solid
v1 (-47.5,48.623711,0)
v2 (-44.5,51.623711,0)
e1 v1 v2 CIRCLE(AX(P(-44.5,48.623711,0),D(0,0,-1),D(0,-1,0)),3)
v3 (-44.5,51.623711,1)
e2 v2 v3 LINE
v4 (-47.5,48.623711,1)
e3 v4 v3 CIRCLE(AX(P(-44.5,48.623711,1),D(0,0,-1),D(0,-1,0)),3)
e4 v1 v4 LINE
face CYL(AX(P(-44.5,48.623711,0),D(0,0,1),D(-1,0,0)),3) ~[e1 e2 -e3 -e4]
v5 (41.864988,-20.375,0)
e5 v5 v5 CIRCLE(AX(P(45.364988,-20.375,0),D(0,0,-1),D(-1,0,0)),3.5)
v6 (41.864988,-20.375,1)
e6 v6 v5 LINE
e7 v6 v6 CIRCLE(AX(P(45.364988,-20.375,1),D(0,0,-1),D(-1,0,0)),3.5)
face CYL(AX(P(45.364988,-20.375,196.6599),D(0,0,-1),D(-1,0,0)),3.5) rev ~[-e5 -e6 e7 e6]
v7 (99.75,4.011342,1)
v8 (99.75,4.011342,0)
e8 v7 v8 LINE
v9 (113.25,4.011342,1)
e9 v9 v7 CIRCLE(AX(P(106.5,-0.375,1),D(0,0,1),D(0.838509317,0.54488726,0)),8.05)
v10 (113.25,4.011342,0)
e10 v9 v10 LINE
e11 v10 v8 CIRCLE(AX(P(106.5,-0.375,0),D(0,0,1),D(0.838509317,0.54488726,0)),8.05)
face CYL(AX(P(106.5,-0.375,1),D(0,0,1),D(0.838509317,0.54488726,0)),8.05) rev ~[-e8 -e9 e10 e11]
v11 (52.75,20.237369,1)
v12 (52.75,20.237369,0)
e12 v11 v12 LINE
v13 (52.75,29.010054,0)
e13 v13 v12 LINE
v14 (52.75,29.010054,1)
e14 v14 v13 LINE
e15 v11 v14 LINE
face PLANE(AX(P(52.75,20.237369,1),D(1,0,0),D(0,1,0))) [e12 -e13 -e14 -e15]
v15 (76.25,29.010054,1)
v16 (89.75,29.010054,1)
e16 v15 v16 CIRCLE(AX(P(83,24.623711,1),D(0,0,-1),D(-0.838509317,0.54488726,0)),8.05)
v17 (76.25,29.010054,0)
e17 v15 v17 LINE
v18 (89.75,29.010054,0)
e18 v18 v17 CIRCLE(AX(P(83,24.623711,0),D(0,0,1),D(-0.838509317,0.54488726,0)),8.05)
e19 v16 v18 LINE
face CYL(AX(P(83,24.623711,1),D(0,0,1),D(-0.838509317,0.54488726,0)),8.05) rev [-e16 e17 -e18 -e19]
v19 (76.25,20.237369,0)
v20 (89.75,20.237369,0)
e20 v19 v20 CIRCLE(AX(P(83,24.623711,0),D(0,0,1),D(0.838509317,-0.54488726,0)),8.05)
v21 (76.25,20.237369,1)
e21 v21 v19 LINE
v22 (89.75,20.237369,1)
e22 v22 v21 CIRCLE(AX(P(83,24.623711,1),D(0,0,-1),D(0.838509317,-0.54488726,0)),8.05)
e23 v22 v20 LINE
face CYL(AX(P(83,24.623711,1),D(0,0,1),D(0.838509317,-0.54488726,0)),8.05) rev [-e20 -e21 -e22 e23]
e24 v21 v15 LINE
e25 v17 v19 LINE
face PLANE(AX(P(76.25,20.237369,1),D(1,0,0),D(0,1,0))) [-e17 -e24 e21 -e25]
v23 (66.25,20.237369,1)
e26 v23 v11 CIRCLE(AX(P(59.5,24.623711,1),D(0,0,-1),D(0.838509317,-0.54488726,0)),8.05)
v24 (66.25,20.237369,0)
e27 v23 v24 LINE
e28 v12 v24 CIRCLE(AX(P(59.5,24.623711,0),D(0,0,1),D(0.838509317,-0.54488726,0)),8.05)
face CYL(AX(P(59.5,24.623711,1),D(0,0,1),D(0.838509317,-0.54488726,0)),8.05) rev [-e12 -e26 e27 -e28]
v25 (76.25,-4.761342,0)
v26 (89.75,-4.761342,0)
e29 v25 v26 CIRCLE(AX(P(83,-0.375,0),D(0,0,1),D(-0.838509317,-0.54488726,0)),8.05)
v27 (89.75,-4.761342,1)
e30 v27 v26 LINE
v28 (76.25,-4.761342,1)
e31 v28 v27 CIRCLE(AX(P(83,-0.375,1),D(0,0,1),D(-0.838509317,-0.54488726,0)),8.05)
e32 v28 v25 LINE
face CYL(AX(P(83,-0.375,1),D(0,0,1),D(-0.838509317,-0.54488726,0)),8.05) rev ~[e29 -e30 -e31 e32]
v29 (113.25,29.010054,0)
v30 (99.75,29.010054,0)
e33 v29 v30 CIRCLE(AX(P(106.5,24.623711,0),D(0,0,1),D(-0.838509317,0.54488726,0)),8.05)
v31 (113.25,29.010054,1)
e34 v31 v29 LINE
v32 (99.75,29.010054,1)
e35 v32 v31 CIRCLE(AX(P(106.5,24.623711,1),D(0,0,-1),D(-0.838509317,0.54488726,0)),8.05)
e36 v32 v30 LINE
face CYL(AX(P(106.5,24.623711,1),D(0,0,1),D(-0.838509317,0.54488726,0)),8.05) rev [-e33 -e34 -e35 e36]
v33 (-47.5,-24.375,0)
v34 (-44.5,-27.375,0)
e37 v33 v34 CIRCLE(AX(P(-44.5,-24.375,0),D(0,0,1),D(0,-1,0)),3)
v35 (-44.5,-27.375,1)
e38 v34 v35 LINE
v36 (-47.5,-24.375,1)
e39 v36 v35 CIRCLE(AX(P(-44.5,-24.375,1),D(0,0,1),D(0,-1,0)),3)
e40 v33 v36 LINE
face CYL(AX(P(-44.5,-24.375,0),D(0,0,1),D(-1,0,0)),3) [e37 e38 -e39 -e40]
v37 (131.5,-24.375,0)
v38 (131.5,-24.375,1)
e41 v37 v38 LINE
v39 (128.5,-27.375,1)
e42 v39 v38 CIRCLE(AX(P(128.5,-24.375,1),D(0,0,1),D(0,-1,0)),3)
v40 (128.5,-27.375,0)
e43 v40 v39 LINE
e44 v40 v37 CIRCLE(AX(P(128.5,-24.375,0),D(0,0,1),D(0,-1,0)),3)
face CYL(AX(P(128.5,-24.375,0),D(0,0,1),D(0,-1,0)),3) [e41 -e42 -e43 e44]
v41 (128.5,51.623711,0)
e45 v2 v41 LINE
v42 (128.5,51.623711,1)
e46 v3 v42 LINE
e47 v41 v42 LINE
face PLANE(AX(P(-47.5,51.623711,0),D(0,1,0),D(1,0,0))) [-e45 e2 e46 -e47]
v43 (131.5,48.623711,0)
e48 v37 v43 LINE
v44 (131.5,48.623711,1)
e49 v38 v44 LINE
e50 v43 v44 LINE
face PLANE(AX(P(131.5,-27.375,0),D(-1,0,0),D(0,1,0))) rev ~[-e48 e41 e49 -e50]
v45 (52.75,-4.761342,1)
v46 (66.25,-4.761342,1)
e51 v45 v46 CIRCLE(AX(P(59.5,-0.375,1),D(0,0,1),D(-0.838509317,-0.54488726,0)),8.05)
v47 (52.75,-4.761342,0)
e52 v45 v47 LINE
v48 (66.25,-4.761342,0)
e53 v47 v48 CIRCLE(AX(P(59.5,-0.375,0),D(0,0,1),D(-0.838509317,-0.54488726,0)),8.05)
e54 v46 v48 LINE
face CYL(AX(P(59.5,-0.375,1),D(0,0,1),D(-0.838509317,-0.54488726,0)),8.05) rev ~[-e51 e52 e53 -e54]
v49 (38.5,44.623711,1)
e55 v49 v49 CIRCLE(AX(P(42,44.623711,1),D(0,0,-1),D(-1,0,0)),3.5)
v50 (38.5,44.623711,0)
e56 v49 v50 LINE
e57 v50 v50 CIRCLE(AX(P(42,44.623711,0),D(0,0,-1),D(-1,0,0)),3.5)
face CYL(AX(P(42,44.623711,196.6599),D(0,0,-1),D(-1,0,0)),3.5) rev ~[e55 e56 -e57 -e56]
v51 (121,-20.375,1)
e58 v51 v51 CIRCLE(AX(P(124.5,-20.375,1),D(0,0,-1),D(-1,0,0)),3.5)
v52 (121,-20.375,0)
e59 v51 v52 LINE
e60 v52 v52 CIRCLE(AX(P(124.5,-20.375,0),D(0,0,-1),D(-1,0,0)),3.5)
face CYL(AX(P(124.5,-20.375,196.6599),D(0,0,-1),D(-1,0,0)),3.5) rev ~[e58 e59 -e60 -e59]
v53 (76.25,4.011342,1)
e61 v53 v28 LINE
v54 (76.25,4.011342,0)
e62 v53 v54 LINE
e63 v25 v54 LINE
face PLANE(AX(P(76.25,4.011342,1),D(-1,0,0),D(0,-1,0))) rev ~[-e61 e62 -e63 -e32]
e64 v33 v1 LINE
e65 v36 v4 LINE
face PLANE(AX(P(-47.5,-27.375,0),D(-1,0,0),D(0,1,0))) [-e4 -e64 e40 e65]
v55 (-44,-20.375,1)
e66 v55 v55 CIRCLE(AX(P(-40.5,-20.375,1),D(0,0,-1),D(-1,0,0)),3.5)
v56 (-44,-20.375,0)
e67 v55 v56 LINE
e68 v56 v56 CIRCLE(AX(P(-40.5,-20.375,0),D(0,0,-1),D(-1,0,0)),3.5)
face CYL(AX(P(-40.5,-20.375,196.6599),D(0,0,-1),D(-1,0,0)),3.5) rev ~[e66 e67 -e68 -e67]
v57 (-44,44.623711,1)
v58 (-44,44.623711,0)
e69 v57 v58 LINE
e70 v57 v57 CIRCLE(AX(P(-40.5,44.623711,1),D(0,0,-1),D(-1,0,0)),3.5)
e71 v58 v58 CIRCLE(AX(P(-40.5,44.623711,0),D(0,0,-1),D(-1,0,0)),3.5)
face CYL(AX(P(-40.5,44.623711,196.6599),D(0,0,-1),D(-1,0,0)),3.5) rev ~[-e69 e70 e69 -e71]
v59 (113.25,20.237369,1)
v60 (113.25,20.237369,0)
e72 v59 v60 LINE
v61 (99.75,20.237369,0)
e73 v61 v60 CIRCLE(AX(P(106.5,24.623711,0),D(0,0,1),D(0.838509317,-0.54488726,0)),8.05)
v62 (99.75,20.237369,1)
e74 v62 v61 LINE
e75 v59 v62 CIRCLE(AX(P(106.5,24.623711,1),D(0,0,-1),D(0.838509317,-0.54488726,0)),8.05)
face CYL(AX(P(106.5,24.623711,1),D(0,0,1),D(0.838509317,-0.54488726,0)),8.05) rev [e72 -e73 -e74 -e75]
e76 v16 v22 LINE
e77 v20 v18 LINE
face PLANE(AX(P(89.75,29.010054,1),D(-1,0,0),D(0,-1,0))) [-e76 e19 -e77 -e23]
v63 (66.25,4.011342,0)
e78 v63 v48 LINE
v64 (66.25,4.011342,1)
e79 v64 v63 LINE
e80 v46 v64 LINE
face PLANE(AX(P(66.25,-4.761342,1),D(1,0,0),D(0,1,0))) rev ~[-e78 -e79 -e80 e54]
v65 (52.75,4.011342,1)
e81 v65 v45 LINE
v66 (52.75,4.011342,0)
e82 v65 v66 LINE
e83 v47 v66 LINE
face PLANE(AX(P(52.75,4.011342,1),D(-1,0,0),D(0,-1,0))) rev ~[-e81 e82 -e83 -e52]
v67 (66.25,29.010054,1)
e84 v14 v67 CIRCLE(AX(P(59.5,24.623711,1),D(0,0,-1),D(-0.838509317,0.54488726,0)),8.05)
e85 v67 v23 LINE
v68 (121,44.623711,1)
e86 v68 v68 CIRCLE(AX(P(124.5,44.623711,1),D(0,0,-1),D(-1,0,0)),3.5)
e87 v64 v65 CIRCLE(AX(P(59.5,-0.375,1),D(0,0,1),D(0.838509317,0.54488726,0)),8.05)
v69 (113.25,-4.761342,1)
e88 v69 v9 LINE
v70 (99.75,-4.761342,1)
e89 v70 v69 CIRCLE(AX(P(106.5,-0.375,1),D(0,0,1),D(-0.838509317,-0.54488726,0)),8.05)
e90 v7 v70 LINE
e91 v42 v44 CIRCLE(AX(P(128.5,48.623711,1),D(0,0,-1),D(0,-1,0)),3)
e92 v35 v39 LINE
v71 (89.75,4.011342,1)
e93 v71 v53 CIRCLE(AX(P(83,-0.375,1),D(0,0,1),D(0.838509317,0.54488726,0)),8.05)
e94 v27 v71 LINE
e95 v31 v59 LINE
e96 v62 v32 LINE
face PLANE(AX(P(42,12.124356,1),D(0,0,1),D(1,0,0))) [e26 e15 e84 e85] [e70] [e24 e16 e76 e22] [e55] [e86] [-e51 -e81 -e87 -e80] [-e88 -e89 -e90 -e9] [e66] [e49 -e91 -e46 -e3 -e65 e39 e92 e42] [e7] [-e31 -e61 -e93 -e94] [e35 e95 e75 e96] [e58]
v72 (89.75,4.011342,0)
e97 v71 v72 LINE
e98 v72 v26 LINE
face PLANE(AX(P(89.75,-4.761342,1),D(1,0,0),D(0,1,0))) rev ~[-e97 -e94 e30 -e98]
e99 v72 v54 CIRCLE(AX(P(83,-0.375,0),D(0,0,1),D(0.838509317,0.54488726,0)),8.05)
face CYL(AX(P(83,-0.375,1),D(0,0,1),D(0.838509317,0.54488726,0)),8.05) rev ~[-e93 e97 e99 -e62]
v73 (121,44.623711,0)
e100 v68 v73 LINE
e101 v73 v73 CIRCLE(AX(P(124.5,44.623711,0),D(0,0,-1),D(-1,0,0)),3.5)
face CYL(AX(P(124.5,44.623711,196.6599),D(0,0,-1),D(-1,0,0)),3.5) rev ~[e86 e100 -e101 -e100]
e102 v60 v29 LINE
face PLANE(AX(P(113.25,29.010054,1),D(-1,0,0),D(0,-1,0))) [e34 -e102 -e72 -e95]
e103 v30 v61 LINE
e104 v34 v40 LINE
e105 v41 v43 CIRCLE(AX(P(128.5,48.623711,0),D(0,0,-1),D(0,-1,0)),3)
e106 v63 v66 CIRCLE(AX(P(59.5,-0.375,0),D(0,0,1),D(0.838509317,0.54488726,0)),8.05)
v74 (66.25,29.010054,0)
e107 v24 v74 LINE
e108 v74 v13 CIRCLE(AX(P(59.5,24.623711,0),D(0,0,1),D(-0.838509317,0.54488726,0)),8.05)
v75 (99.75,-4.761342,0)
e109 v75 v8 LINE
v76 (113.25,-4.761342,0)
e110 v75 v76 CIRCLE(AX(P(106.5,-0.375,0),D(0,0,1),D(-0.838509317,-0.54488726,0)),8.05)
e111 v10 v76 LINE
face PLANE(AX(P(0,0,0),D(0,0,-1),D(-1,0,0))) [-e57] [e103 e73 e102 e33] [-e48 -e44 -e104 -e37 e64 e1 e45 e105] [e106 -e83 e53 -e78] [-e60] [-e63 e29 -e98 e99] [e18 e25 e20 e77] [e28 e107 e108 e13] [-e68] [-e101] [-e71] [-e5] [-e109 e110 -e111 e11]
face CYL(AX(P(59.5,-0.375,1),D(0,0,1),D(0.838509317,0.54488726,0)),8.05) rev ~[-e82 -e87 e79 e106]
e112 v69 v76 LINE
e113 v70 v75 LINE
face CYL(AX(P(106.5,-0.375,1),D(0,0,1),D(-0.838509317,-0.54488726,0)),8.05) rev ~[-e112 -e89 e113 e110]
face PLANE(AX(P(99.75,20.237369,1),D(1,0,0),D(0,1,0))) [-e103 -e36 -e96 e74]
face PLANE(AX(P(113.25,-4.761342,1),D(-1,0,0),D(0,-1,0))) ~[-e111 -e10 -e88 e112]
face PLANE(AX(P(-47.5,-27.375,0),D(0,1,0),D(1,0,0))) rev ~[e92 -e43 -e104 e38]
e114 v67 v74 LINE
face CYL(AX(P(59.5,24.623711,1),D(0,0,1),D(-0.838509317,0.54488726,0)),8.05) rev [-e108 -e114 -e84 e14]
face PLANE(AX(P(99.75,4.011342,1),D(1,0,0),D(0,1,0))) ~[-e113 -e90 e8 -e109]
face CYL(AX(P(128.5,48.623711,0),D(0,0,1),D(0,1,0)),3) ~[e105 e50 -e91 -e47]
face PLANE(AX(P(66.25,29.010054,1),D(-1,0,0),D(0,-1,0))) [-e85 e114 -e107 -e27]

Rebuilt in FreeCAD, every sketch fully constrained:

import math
import FreeCAD as App
import Part
import Sketcher
from FreeCAD import Vector
Q = App.Units.Quantity


def edges_at(feature, points):
    """Names of the edges that pass closest to the given points."""
    edges = feature.Shape.Edges
    near = lambda p: min(range(len(edges)), key=lambda i: edges[i].distToShape(Part.Vertex(*p))[0])
    return sorted({f"Edge{near(p) + 1}" for p in points})


def add_polygon(sketch, points):
    """Adds a closed chain of lines whose ends are joined by coincident constraints."""
    first, n = sketch.GeometryCount, len(points)
    for a, b in zip(points, points[1:] + points[:1]):
        sketch.addGeometry(Part.LineSegment(App.Vector(*a, 0), App.Vector(*b, 0)), False)
    for i in range(n):
        sketch.addConstraint(Sketcher.Constraint("Coincident", first + i, 2, first + (i + 1) % n, 1))

doc = App.newDocument("Part")
body = doc.addObject("PartDesign::Body", "Body")

# Sketch on XY plane
sketch1 = body.newObject("Sketcher::SketchObject", "Sketch")
sketch1.AttachmentSupport = (doc.getObject("XY_Plane"), [""])
sketch1.MapMode = "FlatFace"
add_polygon(sketch1, [(-48, 52), (-48, -27), (132, -27), (132, 52)])  # lines 0-3
sketch1.addConstraint(Sketcher.Constraint("Vertical", 0))
sketch1.addConstraint(Sketcher.Constraint("Horizontal", 1))
sketch1.addConstraint(Sketcher.Constraint("Vertical", 2))
sketch1.addConstraint(Sketcher.Constraint("Horizontal", 3))
sketch1.addConstraint(Sketcher.Constraint("DistanceX", 1, 1, 1, 2, Q("179 mm")))
sketch1.addConstraint(Sketcher.Constraint("DistanceX", 0, 2, -1, 1, Q("47.5 mm")))
sketch1.addConstraint(Sketcher.Constraint("DistanceY", 0, 2, -1, 1, Q("27.375 mm")))
sketch1.addConstraint(Sketcher.Constraint("DistanceY", 0, 2, 0, 1, Q("78.998711 mm")))
pad1 = body.newObject("PartDesign::Pad", "Pad")
pad1.Profile = sketch1
pad1.Length = 1
doc.recompute()

fillet = body.newObject("PartDesign::Fillet", "Fillet")
fillet.Base = (pad1, edges_at(pad1, [
    (-47.5, -27.375, 0.5),
    (-47.5, 51.624, 0.5),
    (131.5, 51.624, 0.5),
    (131.5, -27.375, 0.5),
]))
fillet.Radius = 3

# Sketch on XY plane
sketch2 = body.newObject("Sketcher::SketchObject", "Sketch001")
sketch2.AttachmentSupport = (doc.getObject("XY_Plane"), [""])
sketch2.MapMode = "FlatFace"
sketch2.AttachmentOffset = App.Placement(Vector(0, 0, 1), App.Rotation())
sketch2.addGeometry(Part.LineSegment(Vector(113, 20, 0), Vector(113, 29, 0)), False)
sketch2.addGeometry(Part.ArcOfCircle(Part.Circle(Vector(106, 25, 0), Vector(0, 0, 1), 8), math.radians(33), math.radians(147)), False)
sketch2.addGeometry(Part.LineSegment(Vector(100, 29, 0), Vector(100, 20, 0)), False)
sketch2.addGeometry(Part.ArcOfCircle(Part.Circle(Vector(106, 25, 0), Vector(0, 0, 1), 8), math.radians(-147), math.radians(-33)), False)
sketch2.addConstraint(Sketcher.Constraint("Coincident", 0, 2, 1, 1))
sketch2.addConstraint(Sketcher.Constraint("Coincident", 1, 2, 2, 1))
sketch2.addConstraint(Sketcher.Constraint("Coincident", 2, 2, 3, 1))
sketch2.addConstraint(Sketcher.Constraint("Coincident", 3, 2, 0, 1))
sketch2.addConstraint(Sketcher.Constraint("Vertical", 0))
sketch2.addConstraint(Sketcher.Constraint("Vertical", 2))
sketch2.addConstraint(Sketcher.Constraint("Coincident", 3, 3, 1, 3))
sketch2.addConstraint(Sketcher.Constraint("Equal", 1, 3))
sketch2.addConstraint(Sketcher.Constraint("Horizontal", 0, 2, 1, 2))
sketch2.addConstraint(Sketcher.Constraint("Radius", 1, Q("8.05 mm")))
sketch2.addConstraint(Sketcher.Constraint("DistanceX", -1, 1, 1, 3, Q("106.5 mm")))
sketch2.addConstraint(Sketcher.Constraint("DistanceX", 1, 2, 0, 2, Q("13.5 mm")))
sketch2.addConstraint(Sketcher.Constraint("DistanceY", -1, 1, 1, 3, Q("24.623711 mm")))
pocket1 = body.newObject("PartDesign::Pocket", "Pocket")
pocket1.Profile = sketch2
pocket1.Type = "ThroughAll"

# Sketch on XY plane
sketch3 = body.newObject("Sketcher::SketchObject", "Sketch002")
sketch3.AttachmentSupport = (doc.getObject("XY_Plane"), [""])
sketch3.MapMode = "FlatFace"
sketch3.AttachmentOffset = App.Placement(Vector(0, 0, 1), App.Rotation())
sketch3.addGeometry(Part.Circle(Vector(42, 44.6, 0), Vector(0, 0, 1), 3.5), False)
sketch3.addGeometry(Part.Circle(Vector(-40.5, 44.6, 0), Vector(0, 0, 1), 3.5), False)
sketch3.addGeometry(Part.Circle(Vector(124.5, 44.6, 0), Vector(0, 0, 1), 3.5), False)
sketch3.addGeometry(Part.Circle(Vector(124.5, -20.4, 0), Vector(0, 0, 1), 3.5), False)
sketch3.addGeometry(Part.Circle(Vector(45.4, -20.4, 0), Vector(0, 0, 1), 3.5), False)
sketch3.addGeometry(Part.Circle(Vector(-40.5, -20.4, 0), Vector(0, 0, 1), 3.5), False)
sketch3.addConstraint(Sketcher.Constraint("Equal", 0, 1))
sketch3.addConstraint(Sketcher.Constraint("Equal", 1, 2))
sketch3.addConstraint(Sketcher.Constraint("Equal", 2, 3))
sketch3.addConstraint(Sketcher.Constraint("Equal", 3, 4))
sketch3.addConstraint(Sketcher.Constraint("Equal", 4, 5))
sketch3.addConstraint(Sketcher.Constraint("Horizontal", 0, 3, 1, 3))
sketch3.addConstraint(Sketcher.Constraint("Horizontal", 1, 3, 2, 3))
sketch3.addConstraint(Sketcher.Constraint("Horizontal", 3, 3, 4, 3))
sketch3.addConstraint(Sketcher.Constraint("Horizontal", 4, 3, 5, 3))
sketch3.addConstraint(Sketcher.Constraint("Vertical", 2, 3, 3, 3))
sketch3.addConstraint(Sketcher.Constraint("Vertical", 1, 3, 5, 3))
sketch3.addConstraint(Sketcher.Constraint("Diameter", 0, Q("7 mm")))
sketch3.addConstraint(Sketcher.Constraint("DistanceX", -1, 1, 0, 3, Q("42 mm")))
sketch3.addConstraint(Sketcher.Constraint("DistanceX", 1, 3, 2, 3, Q("165 mm")))
sketch3.addConstraint(Sketcher.Constraint("DistanceX", 1, 3, -1, 1, Q("40.5 mm")))
sketch3.addConstraint(Sketcher.Constraint("DistanceY", 3, 3, -1, 1, Q("20.375 mm")))
sketch3.addConstraint(Sketcher.Constraint("DistanceY", -1, 1, 0, 3, Q("44.623711 mm")))
sketch3.addConstraint(Sketcher.Constraint("DistanceX", -1, 1, 4, 3, Q("45.364988 mm")))
doc.recompute()
hole = body.newObject("PartDesign::Hole", "Hole")
hole.Profile = sketch3
hole.ThreadType = "None"
hole.Diameter = 7
hole.DepthType = "ThroughAll"
doc.recompute()

datumplane = body.newObject("PartDesign::Plane", "DatumPlane")
datumplane.AttachmentSupport = (doc.getObject("XZ_Plane"), [""])
datumplane.MapMode = "FlatFace"
datumplane.AttachmentOffset = App.Placement(Vector(0, 0, -12.124356), App.Rotation())
mirrored = body.newObject("PartDesign::Mirrored", "Mirrored")
mirrored.Originals = [pocket1]
mirrored.MirrorPlane = (datumplane, [""])
body.Tip = mirrored
doc.recompute()

linearpattern = body.newObject("PartDesign::LinearPattern", "LinearPattern")
linearpattern.Originals = [pocket1]
linearpattern.Direction = (doc.getObject("X_Axis"), [""])
linearpattern.Mode = "offset"
linearpattern.Offset = 23.5
linearpattern.Occurrences = 3
linearpattern.Reversed = True
body.Tip = linearpattern

# Sketch on XY plane
sketch4 = body.newObject("Sketcher::SketchObject", "Sketch003")
sketch4.AttachmentSupport = (doc.getObject("XY_Plane"), [""])
sketch4.MapMode = "FlatFace"
sketch4.AttachmentOffset = App.Placement(Vector(0, 0, 1), App.Rotation())
sketch4.addGeometry(Part.LineSegment(Vector(90, -5, 0), Vector(90, 4, 0)), False)
sketch4.addGeometry(Part.ArcOfCircle(Part.Circle(Vector(83, 0, 0), Vector(0, 0, 1), 8), math.radians(33), math.radians(147)), False)
sketch4.addGeometry(Part.LineSegment(Vector(76, 4, 0), Vector(76, -5, 0)), False)
sketch4.addGeometry(Part.ArcOfCircle(Part.Circle(Vector(83, 0, 0), Vector(0, 0, 1), 8), math.radians(-147), math.radians(-33)), False)
sketch4.addConstraint(Sketcher.Constraint("Coincident", 0, 2, 1, 1))
sketch4.addConstraint(Sketcher.Constraint("Coincident", 1, 2, 2, 1))
sketch4.addConstraint(Sketcher.Constraint("Coincident", 2, 2, 3, 1))
sketch4.addConstraint(Sketcher.Constraint("Coincident", 3, 2, 0, 1))
sketch4.addConstraint(Sketcher.Constraint("Vertical", 0))
sketch4.addConstraint(Sketcher.Constraint("Vertical", 2))
sketch4.addConstraint(Sketcher.Constraint("Coincident", 3, 3, 1, 3))
sketch4.addConstraint(Sketcher.Constraint("Equal", 1, 3))
sketch4.addConstraint(Sketcher.Constraint("Horizontal", 0, 2, 1, 2))
sketch4.addConstraint(Sketcher.Constraint("Radius", 1, Q("8.05 mm")))
sketch4.addConstraint(Sketcher.Constraint("DistanceX", -1, 1, 1, 3, Q("83 mm")))
sketch4.addConstraint(Sketcher.Constraint("DistanceX", 1, 2, 0, 2, Q("13.5 mm")))
sketch4.addConstraint(Sketcher.Constraint("DistanceY", 1, 3, -1, 1, Q("0.375 mm")))
pocket2 = body.newObject("PartDesign::Pocket", "Pocket001")
pocket2.Profile = sketch4
pocket2.Type = "ThroughAll"

# Sketch on XY plane
sketch5 = body.newObject("Sketcher::SketchObject", "Sketch004")
sketch5.AttachmentSupport = (doc.getObject("XY_Plane"), [""])
sketch5.MapMode = "FlatFace"
sketch5.AttachmentOffset = App.Placement(Vector(0, 0, 1), App.Rotation())
sketch5.addGeometry(Part.LineSegment(Vector(66, -5, 0), Vector(66, 4, 0)), False)
sketch5.addGeometry(Part.ArcOfCircle(Part.Circle(Vector(60, 0, 0), Vector(0, 0, 1), 8), math.radians(33), math.radians(147)), False)
sketch5.addGeometry(Part.LineSegment(Vector(53, 4, 0), Vector(53, -5, 0)), False)
sketch5.addGeometry(Part.ArcOfCircle(Part.Circle(Vector(60, 0, 0), Vector(0, 0, 1), 8), math.radians(-147), math.radians(-33)), False)
sketch5.addConstraint(Sketcher.Constraint("Coincident", 0, 2, 1, 1))
sketch5.addConstraint(Sketcher.Constraint("Coincident", 1, 2, 2, 1))
sketch5.addConstraint(Sketcher.Constraint("Coincident", 2, 2, 3, 1))
sketch5.addConstraint(Sketcher.Constraint("Coincident", 3, 2, 0, 1))
sketch5.addConstraint(Sketcher.Constraint("Vertical", 0))
sketch5.addConstraint(Sketcher.Constraint("Vertical", 2))
sketch5.addConstraint(Sketcher.Constraint("Coincident", 3, 3, 1, 3))
sketch5.addConstraint(Sketcher.Constraint("Equal", 1, 3))
sketch5.addConstraint(Sketcher.Constraint("Horizontal", 0, 2, 1, 2))
sketch5.addConstraint(Sketcher.Constraint("Radius", 1, Q("8.05 mm")))
sketch5.addConstraint(Sketcher.Constraint("DistanceX", -1, 1, 1, 3, Q("59.5 mm")))
sketch5.addConstraint(Sketcher.Constraint("DistanceX", 1, 2, 0, 2, Q("13.5 mm")))
sketch5.addConstraint(Sketcher.Constraint("DistanceY", 1, 3, -1, 1, Q("0.375 mm")))
pocket3 = body.newObject("PartDesign::Pocket", "Pocket002")
pocket3.Profile = sketch5
pocket3.Type = "ThroughAll"

doc.recompute()
